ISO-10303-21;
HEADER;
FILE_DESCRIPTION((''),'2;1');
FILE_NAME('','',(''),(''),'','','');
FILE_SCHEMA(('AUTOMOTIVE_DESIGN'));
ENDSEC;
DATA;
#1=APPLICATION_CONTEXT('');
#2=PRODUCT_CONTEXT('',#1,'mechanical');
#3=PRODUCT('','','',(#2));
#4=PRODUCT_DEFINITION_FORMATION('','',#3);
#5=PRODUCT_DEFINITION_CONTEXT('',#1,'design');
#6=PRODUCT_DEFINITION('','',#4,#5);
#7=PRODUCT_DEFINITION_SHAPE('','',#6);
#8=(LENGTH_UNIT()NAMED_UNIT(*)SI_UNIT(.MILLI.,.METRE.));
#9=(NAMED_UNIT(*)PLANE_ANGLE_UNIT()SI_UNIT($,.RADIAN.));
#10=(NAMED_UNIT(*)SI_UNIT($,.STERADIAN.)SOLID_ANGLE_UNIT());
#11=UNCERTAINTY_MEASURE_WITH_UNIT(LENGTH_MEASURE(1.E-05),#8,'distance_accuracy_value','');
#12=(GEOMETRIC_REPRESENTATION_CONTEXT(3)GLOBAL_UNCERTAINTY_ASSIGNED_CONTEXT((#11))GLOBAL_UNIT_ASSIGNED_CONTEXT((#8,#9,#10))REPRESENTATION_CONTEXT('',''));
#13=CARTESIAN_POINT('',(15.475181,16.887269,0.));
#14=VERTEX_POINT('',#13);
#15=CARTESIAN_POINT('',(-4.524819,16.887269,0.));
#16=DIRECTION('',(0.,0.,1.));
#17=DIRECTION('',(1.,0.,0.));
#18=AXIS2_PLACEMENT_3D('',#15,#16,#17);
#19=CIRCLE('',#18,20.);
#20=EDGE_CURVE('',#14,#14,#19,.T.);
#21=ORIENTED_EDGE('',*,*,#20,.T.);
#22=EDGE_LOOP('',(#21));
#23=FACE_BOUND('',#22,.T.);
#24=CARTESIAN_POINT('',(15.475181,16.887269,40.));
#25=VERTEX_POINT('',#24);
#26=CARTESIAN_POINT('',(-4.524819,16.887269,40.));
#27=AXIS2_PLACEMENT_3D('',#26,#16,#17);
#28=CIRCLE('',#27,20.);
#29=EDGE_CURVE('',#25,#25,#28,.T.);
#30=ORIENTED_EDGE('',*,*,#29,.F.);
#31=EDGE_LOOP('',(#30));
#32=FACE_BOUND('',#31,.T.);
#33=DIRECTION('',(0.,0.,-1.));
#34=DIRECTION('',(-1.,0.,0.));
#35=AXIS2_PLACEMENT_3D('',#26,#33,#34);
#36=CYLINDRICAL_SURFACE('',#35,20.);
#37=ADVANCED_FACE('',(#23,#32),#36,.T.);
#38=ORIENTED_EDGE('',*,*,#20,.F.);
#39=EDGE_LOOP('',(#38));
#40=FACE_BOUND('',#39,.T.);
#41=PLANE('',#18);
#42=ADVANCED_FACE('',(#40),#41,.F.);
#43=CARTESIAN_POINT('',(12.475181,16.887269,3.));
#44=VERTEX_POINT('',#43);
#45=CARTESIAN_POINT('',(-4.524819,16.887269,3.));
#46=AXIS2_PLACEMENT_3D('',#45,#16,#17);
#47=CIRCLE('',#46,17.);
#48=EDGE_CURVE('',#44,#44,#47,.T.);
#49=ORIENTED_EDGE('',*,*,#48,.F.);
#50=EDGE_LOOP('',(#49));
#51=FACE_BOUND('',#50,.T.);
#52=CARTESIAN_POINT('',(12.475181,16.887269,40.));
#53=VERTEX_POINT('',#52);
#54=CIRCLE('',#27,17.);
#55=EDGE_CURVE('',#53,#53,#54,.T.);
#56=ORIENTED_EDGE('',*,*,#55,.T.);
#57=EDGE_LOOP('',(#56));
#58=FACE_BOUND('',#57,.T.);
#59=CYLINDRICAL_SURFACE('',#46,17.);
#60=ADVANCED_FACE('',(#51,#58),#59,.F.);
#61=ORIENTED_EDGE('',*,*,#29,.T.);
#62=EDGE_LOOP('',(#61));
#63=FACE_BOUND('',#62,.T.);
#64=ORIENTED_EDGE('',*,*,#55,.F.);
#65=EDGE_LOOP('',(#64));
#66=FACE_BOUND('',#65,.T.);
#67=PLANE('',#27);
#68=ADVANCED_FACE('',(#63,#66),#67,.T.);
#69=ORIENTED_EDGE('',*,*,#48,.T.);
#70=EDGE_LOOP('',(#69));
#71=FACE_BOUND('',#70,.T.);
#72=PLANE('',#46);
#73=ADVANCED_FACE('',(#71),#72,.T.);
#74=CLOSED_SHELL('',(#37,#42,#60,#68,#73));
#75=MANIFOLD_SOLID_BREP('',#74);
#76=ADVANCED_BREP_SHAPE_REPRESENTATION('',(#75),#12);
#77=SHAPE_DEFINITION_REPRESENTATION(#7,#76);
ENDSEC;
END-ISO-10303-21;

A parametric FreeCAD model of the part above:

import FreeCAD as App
import Part
import Sketcher

V = App.Vector

doc = App.newDocument("Part")
body = doc.addObject("PartDesign::Body", "Body")

sketch1 = doc.addObject("Sketcher::SketchObject", "Sketch")
body.addObject(sketch1)
sketch1.AttachmentSupport = (doc.XY_Plane, [""])
sketch1.MapMode = "FlatFace"
sketch1.addGeometry(Part.Circle(V(-4.524819, 16.887269, 0), V(0, 0, 1), 20), False)
sketch1.addConstraint([
    Sketcher.Constraint("Diameter", 0, 40.0),
    Sketcher.Constraint("DistanceX", 0, 3, -1, 1, 4.524819),
    Sketcher.Constraint("DistanceY", -1, 1, 0, 3, 16.887269),
])
pad1 = doc.addObject("PartDesign::Pad", "Pad")
body.addObject(pad1)
pad1.Profile = sketch1
pad1.Length = 40

sketch2 = doc.addObject("Sketcher::SketchObject", "Sketch001")
body.addObject(sketch2)
sketch2.AttachmentSupport = (doc.XY_Plane, [""])
sketch2.MapMode = "FlatFace"
sketch2.AttachmentOffset = App.Placement(V(0, 0, 40), App.Rotation())
sketch2.addGeometry(Part.Circle(V(-4.524819, 16.887269, 0), V(0, 0, 1), 17), False)
sketch2.addConstraint([
    Sketcher.Constraint("Diameter", 0, 34.0),
    Sketcher.Constraint("DistanceX", 0, 3, -1, 1, 4.524819),
    Sketcher.Constraint("DistanceY", -1, 1, 0, 3, 16.887269),
])
pocket1 = doc.addObject("PartDesign::Pocket", "Pocket")
body.addObject(pocket1)
pocket1.Profile = sketch2
pocket1.Length = 37

doc.recompute()
